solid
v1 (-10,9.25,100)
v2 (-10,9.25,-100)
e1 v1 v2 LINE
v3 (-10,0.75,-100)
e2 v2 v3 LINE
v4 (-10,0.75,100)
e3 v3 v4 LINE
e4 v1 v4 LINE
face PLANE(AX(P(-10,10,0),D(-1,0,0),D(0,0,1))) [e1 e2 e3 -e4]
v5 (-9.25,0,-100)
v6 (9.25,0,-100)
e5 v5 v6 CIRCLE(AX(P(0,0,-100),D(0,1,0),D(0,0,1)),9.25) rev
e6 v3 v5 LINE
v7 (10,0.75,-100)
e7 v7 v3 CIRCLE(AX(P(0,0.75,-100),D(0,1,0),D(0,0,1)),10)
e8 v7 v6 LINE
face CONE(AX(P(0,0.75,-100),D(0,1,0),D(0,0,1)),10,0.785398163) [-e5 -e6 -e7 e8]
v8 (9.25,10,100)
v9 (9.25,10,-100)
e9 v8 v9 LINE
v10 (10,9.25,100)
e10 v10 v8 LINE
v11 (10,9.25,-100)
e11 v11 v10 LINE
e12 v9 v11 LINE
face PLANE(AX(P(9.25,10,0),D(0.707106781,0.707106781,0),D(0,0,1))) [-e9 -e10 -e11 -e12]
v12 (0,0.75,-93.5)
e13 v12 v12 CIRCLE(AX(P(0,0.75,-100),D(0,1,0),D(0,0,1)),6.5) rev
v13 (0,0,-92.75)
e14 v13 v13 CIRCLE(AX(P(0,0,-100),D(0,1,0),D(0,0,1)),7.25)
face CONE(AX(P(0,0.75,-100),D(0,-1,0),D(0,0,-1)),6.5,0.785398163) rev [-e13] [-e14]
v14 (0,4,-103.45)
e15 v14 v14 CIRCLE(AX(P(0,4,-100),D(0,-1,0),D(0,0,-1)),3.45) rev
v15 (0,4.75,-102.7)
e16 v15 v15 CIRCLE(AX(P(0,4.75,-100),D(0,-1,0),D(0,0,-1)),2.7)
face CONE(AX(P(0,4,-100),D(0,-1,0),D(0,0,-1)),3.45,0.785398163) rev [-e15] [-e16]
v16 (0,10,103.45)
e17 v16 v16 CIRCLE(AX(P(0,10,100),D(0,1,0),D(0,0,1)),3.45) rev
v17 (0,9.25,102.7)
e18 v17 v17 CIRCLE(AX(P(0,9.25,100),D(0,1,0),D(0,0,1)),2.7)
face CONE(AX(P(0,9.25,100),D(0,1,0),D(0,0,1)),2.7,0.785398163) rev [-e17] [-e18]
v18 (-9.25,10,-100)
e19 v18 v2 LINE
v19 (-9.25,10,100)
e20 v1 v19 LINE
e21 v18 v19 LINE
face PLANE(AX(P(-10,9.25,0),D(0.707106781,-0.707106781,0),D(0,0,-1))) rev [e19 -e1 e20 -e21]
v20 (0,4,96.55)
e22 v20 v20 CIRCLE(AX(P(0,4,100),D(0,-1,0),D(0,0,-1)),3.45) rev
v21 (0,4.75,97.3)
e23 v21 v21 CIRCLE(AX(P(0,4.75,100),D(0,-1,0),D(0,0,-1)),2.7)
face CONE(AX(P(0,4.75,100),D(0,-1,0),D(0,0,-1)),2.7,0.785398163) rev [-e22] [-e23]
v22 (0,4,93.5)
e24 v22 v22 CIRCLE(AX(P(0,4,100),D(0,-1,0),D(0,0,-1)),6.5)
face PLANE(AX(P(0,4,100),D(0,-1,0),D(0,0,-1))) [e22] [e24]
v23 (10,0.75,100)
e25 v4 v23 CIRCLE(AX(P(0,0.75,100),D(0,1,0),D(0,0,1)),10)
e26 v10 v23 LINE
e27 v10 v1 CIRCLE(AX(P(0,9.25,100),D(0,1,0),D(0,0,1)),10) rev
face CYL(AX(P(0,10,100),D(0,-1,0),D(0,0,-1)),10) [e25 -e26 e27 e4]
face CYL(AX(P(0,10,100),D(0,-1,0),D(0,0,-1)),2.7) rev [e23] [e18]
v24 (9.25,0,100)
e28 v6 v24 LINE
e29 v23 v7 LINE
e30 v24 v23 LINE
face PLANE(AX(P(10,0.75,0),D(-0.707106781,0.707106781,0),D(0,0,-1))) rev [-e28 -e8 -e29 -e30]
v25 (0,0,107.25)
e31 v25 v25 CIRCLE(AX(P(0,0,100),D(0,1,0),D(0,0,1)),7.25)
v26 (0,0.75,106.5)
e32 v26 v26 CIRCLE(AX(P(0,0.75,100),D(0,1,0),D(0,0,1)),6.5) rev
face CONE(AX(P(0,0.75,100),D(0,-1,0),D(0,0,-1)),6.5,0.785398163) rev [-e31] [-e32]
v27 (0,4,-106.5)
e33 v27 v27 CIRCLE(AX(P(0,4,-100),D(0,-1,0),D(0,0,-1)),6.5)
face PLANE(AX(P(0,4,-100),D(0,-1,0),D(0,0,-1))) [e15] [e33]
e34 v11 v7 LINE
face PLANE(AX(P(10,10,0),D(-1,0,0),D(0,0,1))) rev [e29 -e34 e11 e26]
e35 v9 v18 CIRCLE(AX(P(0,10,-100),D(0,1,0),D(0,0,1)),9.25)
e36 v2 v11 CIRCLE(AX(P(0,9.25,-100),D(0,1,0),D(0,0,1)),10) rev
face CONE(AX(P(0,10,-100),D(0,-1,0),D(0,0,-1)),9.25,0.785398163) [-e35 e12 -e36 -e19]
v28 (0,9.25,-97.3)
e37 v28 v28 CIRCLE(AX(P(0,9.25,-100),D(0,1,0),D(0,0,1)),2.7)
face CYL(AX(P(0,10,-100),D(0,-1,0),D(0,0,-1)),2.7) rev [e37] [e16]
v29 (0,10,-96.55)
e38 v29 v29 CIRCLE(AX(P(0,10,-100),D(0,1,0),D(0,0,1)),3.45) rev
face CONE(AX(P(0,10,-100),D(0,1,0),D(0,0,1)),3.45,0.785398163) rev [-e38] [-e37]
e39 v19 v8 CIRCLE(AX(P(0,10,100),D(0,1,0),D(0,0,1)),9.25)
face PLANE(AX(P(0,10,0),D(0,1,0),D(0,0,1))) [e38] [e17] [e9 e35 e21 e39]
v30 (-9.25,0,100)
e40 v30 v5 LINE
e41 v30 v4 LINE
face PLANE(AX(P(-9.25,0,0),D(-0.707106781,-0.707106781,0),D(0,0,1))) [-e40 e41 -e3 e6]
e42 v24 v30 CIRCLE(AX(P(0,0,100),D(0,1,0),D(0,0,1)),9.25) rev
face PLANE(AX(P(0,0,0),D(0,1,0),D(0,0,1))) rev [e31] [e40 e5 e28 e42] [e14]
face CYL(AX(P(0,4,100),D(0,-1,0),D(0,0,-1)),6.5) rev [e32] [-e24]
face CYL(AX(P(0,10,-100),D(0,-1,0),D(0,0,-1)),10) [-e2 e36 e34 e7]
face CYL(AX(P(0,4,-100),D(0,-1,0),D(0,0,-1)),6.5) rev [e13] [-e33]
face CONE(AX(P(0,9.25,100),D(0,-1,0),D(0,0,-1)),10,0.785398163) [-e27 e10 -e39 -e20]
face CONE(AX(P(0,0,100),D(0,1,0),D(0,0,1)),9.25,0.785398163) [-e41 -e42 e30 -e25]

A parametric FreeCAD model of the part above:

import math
import FreeCAD as App
import Part
import Sketcher
from FreeCAD import Vector
Q = App.Units.Quantity


def edges_at(feature, points):
    """Names of the edges that pass closest to the given points."""
    edges = feature.Shape.Edges
    near = lambda p: min(range(len(edges)), key=lambda i: edges[i].distToShape(Part.Vertex(*p))[0])
    return sorted({f"Edge{near(p) + 1}" for p in points})

doc = App.newDocument("Part")
body = doc.addObject("PartDesign::Body", "Body")

sketch1 = body.newObject("Sketcher::SketchObject", "Sketch")
sketch1.AttachmentSupport = (doc.getObject("XZ_Plane"), [""])
sketch1.MapMode = "FlatFace"
sketch1.addGeometry([
    Part.LineSegment(Vector(10, 100, 0), Vector(10, -100, 0)),
    Part.ArcOfCircle(Part.Circle(Vector(0, -100, 0), Vector(0, 0, 1), 10), math.radians(180), math.radians(360)),
    Part.LineSegment(Vector(-10, -100, 0), Vector(-10, 100, 0)),
    Part.ArcOfCircle(Part.Circle(Vector(0, 100, 0), Vector(0, 0, 1), 10), math.radians(0), math.radians(180)),
    Part.Circle(Vector(0, 100, 0), Vector(0, 0, 1), 2.7),
    Part.Circle(Vector(0, -100, 0), Vector(0, 0, 1), 2.7),
], False)
sketch1.addConstraint([
    Sketcher.Constraint("Tangent", 0, 2, 1, 2),
    Sketcher.Constraint("Tangent", 1, 1, 2, 1),
    Sketcher.Constraint("Tangent", 2, 2, 3, 2),
    Sketcher.Constraint("Tangent", 3, 1, 0, 1),
    Sketcher.Constraint("Vertical", 0),
    Sketcher.Constraint("Vertical", 2),
    Sketcher.Constraint("Coincident", 4, 3, 3, 3),
    Sketcher.Constraint("Coincident", 5, 3, 1, 3),
    Sketcher.Constraint("Equal", 4, 5),
    Sketcher.Constraint("Symmetric", 1, 3, 3, 3, -1, 1),
    Sketcher.Constraint("Radius", 1, Q("10 mm")),
    Sketcher.Constraint("Diameter", 4, Q("5.4 mm")),
    Sketcher.Constraint("DistanceY", 0, 2, 0, 1, Q("200 mm")),
])
pad1 = body.newObject("PartDesign::Pad", "Pad")
pad1.Profile = sketch1
pad1.Length = 10
pad1.Reversed = True

sketch2 = body.newObject("Sketcher::SketchObject", "Sketch001")
sketch2.AttachmentSupport = (doc.getObject("XZ_Plane"), [""])
sketch2.MapMode = "FlatFace"
sketch2.addGeometry([
    Part.Circle(Vector(0, 100, 0), Vector(0, 0, 1), 6.5),
    Part.Circle(Vector(0, -100, 0), Vector(0, 0, 1), 6.5),
], False)
sketch2.addConstraint([
    Sketcher.Constraint("Equal", 0, 1),
    Sketcher.Constraint("Symmetric", 0, 3, 1, 3, -1, 1),
    Sketcher.Constraint("PointOnObject", 0, 3, -2),
    Sketcher.Constraint("Diameter", 0, Q("13 mm")),
    Sketcher.Constraint("DistanceY", -1, 1, 0, 3, Q("100 mm")),
])
pocket1 = body.newObject("PartDesign::Pocket", "Pocket")
pocket1.Profile = sketch2
pocket1.Length = 4
doc.recompute()

chamfer = body.newObject("PartDesign::Chamfer", "Chamfer")
chamfer.Base = (pocket1, edges_at(pocket1, [
    (0, 10, 97.3),
    (10, 10, 0),
    (0, 10, -110),
    (0, 4, 97.3),
    (0, 0, 106.5),
    (0, 0, -93.5),
    (0, 4, -102.7),
    (-10, 10, 0),
    (0, 10, 110),
    (0, 10, -102.7),
    (0, 0, 110),
    (-10, 0, 0),
    (0, 0, -110),
    (10, 0, 0),
]))
chamfer.Size = 0.75

doc.recompute()
